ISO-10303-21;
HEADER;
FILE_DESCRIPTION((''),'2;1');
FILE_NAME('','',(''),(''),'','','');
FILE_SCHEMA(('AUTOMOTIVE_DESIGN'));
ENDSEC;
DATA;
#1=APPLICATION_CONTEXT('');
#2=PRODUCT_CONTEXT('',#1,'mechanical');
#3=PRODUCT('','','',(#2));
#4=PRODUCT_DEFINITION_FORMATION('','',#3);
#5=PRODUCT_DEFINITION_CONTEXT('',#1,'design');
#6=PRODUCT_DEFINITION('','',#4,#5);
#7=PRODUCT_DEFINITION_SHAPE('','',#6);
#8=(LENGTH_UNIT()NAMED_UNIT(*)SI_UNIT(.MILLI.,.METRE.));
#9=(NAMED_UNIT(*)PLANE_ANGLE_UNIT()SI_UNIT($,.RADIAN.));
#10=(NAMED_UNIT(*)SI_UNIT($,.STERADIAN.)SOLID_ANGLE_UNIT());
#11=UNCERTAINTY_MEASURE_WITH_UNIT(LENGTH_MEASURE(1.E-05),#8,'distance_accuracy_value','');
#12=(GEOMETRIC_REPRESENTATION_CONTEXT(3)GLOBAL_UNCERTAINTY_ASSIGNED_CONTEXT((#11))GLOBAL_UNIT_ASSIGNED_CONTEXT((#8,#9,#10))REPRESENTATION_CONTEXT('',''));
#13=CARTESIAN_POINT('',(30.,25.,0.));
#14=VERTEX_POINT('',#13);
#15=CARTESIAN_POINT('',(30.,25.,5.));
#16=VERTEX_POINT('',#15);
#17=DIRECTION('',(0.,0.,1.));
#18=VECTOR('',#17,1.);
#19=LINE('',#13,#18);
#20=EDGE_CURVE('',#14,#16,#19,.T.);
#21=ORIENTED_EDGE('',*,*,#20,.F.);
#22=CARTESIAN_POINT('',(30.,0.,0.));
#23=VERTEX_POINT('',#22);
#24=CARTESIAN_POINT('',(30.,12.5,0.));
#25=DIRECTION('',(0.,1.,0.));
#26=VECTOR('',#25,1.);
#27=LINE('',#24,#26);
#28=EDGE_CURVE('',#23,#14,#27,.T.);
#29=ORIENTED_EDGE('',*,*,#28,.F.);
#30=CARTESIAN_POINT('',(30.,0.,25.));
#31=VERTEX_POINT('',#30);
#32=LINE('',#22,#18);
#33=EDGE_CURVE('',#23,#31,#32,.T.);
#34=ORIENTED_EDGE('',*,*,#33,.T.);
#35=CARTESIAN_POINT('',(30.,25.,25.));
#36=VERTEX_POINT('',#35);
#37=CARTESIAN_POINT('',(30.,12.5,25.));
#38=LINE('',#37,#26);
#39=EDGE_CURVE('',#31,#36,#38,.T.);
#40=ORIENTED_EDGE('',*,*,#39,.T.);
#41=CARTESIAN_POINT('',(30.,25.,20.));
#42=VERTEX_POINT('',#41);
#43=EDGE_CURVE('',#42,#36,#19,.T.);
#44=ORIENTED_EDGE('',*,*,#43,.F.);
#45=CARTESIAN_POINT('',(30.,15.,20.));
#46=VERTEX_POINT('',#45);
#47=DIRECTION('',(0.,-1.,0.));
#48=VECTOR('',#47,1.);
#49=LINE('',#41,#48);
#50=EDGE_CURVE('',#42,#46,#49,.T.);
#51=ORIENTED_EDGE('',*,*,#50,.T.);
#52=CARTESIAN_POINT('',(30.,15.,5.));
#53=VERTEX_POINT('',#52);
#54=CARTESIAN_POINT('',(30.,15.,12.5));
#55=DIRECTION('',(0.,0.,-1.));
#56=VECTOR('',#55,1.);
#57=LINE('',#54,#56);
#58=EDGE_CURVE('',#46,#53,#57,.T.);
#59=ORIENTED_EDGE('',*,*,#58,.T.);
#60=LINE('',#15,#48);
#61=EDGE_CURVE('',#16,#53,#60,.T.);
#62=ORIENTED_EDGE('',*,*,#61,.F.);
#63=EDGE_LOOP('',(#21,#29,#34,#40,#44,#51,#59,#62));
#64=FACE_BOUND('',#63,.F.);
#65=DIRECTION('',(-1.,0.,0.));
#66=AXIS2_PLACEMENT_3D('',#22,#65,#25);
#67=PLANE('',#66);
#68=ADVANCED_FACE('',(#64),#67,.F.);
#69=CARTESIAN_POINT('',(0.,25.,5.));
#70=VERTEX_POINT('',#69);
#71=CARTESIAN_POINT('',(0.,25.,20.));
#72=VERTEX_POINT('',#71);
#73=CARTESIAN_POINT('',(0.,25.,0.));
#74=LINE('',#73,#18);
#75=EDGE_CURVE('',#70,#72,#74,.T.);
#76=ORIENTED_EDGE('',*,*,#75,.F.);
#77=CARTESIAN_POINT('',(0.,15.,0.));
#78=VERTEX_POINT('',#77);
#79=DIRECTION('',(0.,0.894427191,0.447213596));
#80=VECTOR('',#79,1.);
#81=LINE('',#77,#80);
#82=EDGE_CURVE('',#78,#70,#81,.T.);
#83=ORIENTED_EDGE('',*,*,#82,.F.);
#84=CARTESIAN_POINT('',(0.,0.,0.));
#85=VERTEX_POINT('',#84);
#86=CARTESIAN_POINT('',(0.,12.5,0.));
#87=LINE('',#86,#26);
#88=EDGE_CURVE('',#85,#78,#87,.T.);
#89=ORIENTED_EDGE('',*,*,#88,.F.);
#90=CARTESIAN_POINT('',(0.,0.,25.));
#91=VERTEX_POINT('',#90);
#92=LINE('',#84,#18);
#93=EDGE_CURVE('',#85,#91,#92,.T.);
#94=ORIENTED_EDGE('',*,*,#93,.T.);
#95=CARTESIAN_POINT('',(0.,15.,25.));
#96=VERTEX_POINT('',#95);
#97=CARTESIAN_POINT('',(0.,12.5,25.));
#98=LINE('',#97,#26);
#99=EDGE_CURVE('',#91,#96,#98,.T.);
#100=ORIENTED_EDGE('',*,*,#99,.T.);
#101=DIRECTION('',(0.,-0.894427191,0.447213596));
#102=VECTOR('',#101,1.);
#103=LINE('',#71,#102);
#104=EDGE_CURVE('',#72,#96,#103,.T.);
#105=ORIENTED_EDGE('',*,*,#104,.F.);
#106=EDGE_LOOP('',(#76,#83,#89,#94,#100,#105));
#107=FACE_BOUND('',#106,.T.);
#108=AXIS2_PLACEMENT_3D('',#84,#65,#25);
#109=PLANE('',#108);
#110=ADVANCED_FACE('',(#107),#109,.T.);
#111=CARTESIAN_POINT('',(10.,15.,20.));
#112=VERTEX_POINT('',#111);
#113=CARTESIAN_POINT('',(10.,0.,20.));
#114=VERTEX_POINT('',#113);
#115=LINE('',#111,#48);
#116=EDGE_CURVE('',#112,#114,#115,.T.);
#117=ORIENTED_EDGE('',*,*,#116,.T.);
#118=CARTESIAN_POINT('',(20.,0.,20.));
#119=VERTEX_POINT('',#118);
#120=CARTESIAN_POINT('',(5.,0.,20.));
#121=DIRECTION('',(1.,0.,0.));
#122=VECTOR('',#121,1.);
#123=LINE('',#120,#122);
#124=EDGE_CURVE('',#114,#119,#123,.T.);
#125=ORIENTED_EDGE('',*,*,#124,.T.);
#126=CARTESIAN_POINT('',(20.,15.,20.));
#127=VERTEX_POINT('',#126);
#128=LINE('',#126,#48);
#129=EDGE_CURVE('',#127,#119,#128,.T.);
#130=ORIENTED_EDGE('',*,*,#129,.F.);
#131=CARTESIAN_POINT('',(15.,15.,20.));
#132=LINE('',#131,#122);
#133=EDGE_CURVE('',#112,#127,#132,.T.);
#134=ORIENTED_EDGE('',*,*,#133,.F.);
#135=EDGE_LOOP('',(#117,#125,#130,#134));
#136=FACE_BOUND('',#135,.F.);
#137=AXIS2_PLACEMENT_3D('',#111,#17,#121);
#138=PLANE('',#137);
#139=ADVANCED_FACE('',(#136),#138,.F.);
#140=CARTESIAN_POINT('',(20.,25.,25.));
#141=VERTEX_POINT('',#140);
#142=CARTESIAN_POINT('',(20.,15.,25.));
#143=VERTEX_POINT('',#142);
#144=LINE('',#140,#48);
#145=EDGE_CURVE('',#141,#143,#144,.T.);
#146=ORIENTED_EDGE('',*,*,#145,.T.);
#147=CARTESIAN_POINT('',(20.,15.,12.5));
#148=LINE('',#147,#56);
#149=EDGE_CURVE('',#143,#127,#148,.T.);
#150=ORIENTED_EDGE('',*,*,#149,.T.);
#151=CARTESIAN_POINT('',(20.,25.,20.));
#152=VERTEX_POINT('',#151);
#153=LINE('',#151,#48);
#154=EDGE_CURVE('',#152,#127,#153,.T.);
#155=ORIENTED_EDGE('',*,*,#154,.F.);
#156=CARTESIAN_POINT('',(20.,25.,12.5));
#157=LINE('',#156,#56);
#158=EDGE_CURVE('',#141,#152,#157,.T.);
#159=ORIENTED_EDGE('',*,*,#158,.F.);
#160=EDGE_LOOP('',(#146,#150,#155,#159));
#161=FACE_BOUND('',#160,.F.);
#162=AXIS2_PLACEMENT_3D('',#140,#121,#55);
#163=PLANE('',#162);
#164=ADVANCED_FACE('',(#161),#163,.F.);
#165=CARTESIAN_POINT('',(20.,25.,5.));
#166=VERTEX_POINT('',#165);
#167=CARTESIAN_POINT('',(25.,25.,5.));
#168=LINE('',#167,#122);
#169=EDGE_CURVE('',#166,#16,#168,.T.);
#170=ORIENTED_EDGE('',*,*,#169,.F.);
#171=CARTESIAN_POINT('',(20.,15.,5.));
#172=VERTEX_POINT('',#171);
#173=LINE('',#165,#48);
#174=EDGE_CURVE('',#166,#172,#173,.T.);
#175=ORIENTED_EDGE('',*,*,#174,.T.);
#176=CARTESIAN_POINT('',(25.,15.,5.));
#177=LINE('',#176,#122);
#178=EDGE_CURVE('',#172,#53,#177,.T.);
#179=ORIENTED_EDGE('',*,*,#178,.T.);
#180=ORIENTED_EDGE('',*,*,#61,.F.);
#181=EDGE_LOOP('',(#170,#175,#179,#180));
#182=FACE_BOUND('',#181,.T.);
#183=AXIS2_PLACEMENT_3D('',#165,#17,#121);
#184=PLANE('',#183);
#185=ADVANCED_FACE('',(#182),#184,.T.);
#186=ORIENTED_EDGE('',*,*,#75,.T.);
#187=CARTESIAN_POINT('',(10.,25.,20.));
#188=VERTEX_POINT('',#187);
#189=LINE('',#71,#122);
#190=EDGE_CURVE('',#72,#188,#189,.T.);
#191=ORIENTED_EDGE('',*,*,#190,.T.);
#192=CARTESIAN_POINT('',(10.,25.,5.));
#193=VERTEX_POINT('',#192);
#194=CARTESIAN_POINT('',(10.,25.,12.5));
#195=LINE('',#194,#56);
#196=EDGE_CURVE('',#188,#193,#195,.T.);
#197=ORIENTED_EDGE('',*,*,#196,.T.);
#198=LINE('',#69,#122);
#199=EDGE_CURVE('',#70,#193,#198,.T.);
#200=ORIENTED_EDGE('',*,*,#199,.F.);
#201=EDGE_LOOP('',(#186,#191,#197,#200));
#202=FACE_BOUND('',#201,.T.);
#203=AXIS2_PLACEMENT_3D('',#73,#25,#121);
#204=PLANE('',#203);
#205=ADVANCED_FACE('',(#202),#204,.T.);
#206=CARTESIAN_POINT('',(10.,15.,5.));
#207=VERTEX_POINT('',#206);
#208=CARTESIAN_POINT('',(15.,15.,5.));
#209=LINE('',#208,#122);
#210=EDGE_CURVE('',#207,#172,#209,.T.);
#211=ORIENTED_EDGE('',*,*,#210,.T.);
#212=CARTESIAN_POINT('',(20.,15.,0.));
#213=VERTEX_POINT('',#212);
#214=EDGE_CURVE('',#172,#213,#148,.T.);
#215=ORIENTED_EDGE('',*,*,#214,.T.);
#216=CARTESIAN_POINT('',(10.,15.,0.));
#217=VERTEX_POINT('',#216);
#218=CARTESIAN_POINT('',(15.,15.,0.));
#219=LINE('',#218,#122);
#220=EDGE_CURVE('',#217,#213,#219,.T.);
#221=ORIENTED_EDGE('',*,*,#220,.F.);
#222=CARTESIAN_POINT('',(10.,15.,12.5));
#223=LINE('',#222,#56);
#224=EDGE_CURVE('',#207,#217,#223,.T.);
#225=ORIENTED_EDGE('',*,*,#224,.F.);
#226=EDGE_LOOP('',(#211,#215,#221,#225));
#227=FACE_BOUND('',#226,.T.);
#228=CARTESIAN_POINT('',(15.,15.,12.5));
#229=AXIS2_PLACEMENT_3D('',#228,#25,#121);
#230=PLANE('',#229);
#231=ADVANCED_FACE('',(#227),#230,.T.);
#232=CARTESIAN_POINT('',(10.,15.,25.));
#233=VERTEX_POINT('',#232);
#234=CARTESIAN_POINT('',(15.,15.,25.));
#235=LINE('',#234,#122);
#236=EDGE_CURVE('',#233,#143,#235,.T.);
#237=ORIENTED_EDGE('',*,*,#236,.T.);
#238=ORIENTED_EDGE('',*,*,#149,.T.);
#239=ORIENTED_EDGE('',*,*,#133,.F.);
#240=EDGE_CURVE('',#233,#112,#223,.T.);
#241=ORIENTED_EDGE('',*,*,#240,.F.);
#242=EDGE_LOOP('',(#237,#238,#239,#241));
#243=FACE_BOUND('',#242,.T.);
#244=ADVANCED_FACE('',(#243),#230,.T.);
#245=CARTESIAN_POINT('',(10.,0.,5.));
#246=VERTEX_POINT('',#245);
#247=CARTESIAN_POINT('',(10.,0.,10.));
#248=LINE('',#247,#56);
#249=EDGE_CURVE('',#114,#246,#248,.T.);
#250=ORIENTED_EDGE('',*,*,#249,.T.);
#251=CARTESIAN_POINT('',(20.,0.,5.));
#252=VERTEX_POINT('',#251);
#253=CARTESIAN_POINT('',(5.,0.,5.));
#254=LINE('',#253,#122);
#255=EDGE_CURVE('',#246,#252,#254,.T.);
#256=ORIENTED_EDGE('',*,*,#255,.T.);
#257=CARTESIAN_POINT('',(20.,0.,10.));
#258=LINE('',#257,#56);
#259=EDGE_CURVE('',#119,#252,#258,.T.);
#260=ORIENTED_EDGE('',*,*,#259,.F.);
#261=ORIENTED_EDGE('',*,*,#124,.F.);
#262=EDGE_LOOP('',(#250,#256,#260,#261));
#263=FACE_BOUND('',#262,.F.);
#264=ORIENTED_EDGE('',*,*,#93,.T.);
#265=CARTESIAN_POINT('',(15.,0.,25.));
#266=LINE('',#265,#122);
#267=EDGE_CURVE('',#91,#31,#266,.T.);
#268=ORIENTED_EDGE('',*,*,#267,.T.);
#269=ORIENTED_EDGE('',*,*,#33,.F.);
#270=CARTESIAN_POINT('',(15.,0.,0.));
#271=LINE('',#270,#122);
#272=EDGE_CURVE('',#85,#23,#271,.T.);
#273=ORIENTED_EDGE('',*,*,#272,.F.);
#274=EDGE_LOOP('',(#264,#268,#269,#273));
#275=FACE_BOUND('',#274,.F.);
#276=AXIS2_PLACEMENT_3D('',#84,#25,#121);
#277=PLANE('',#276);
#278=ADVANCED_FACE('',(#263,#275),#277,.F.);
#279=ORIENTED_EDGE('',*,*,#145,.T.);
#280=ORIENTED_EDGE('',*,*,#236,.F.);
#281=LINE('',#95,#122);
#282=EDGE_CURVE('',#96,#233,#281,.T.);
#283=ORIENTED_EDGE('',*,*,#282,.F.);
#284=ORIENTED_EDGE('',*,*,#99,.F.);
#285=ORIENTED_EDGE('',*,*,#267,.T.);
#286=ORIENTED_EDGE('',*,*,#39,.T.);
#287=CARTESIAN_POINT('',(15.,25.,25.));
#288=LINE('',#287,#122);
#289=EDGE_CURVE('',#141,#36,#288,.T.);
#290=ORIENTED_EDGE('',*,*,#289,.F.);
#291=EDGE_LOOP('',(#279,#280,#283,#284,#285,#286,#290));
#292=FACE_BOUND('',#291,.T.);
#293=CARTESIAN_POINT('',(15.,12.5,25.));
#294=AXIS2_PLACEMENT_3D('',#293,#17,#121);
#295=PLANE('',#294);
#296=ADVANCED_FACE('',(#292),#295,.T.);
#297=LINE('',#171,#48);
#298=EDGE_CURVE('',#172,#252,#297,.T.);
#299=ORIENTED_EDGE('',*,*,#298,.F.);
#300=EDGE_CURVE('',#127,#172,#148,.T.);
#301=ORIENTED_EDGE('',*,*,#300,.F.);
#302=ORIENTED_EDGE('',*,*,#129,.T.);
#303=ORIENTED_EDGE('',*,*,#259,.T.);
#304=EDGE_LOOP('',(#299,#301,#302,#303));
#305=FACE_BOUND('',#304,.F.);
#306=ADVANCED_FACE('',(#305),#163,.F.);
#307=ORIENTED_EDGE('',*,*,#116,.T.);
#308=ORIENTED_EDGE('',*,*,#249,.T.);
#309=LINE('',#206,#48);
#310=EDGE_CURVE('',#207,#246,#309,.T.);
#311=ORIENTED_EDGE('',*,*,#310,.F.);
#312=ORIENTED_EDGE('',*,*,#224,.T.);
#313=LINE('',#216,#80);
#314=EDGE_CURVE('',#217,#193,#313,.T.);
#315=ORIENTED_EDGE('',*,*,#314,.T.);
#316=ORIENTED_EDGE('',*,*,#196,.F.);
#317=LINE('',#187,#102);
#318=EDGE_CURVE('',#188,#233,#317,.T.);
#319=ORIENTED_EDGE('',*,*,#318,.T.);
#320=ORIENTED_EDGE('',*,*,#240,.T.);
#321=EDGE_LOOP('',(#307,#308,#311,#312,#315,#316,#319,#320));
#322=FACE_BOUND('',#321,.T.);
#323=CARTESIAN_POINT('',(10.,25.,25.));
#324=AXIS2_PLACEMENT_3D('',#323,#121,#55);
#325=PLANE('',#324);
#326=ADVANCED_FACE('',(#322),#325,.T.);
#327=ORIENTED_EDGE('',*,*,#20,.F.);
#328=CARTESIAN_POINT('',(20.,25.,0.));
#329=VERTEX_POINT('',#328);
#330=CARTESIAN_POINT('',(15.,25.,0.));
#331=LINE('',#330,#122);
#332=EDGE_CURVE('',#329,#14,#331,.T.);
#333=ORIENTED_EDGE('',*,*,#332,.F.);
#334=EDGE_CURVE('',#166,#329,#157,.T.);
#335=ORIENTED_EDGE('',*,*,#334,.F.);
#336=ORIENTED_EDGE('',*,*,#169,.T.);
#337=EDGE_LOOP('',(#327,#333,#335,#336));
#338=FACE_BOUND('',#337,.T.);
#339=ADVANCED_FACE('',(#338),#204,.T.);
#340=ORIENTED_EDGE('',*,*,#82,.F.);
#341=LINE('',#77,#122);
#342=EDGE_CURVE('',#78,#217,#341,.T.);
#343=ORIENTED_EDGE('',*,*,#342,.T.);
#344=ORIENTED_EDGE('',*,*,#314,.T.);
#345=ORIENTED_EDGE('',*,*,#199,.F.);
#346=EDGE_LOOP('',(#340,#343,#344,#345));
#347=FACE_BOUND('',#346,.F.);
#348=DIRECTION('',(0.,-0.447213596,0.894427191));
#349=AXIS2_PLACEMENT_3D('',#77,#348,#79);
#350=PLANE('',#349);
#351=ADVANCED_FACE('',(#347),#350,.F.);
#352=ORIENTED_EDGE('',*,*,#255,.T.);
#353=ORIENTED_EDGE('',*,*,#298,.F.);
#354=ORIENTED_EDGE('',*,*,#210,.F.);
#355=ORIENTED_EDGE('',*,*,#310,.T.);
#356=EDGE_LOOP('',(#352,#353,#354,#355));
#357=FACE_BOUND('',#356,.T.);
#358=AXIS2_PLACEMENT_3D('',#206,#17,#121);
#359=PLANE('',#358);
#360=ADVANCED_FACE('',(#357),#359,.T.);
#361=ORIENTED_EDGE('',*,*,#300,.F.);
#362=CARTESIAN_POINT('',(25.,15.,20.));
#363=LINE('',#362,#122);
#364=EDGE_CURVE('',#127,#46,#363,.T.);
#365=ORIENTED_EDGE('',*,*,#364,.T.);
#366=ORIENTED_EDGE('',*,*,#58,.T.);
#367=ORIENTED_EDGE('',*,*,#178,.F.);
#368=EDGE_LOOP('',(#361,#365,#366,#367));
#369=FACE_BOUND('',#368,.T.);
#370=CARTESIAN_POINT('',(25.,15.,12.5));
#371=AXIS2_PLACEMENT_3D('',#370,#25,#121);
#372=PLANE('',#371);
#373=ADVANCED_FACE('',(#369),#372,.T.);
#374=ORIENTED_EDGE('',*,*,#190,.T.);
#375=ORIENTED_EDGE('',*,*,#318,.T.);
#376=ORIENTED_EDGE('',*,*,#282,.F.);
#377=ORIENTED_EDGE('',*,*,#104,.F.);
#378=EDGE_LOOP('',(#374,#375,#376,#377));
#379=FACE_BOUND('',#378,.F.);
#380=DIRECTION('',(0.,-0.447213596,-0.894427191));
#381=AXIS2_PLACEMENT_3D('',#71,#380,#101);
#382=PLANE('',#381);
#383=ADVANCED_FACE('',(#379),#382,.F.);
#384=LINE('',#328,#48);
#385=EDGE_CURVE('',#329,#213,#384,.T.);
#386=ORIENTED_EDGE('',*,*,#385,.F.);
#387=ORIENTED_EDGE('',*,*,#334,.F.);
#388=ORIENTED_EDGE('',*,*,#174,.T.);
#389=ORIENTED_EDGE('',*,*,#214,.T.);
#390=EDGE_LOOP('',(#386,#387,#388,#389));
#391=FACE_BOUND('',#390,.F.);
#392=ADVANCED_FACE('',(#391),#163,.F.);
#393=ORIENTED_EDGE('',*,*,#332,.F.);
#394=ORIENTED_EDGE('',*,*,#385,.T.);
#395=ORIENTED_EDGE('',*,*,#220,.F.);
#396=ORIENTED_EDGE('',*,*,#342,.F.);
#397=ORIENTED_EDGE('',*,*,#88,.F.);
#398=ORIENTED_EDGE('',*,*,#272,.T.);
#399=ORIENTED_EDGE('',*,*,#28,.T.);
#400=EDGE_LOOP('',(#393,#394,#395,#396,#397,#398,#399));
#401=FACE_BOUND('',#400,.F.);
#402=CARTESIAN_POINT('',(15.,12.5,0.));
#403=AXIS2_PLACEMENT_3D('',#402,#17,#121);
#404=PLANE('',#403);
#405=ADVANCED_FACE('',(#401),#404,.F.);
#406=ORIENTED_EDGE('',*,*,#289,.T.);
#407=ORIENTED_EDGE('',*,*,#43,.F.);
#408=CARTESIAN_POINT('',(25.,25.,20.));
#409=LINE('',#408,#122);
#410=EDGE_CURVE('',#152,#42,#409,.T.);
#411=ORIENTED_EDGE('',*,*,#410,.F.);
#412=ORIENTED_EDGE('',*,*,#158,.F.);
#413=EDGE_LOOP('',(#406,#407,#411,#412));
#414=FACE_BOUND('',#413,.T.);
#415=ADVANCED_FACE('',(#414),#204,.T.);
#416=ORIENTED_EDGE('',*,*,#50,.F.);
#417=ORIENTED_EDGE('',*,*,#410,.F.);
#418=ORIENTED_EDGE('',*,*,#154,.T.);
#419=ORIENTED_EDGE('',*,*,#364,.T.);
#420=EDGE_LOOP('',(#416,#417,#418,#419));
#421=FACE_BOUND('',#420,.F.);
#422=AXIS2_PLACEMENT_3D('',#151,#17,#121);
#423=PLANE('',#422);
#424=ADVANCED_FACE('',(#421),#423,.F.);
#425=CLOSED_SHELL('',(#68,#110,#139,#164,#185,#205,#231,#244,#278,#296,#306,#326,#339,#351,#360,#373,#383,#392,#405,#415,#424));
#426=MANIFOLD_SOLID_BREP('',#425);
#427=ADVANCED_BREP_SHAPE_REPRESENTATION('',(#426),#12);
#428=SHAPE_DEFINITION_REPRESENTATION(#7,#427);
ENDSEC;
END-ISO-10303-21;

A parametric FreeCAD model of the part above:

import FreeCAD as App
import Part
import Sketcher
from FreeCAD import Vector
Q = App.Units.Quantity

doc = App.newDocument("Part")
body = doc.addObject("PartDesign::Body", "Body")

# Sketch on XY plane
sketch1 = doc.addObject("Sketcher::SketchObject", "Sketch")
body.addObject(sketch1)
sketch1.AttachmentSupport = (doc.XY_Plane, [""])
sketch1.MapMode = "FlatFace"
sketch1.addGeometry([
    Part.LineSegment(Vector(0, 25, 0), Vector(0, 0, 0)),
    Part.LineSegment(Vector(0, 0, 0), Vector(30, 0, 0)),
    Part.LineSegment(Vector(30, 0, 0), Vector(30, 25, 0)),
    Part.LineSegment(Vector(30, 25, 0), Vector(0, 25, 0)),
], False)
sketch1.addConstraint([
    Sketcher.Constraint("Coincident", 0, 2, 1, 1),
    Sketcher.Constraint("Coincident", 1, 2, 2, 1),
    Sketcher.Constraint("Coincident", 2, 2, 3, 1),
    Sketcher.Constraint("Coincident", 3, 2, 0, 1),
    Sketcher.Constraint("Vertical", 0),
    Sketcher.Constraint("Horizontal", 1),
    Sketcher.Constraint("Vertical", 2),
    Sketcher.Constraint("Horizontal", 3),
    Sketcher.Constraint("Coincident", 0, 2, -1, 1),
    Sketcher.Constraint("DistanceX", 1, 1, 1, 2, Q("30 mm")),
    Sketcher.Constraint("DistanceY", 0, 2, 0, 1, Q("25 mm")),
])
pad1 = doc.addObject("PartDesign::Pad", "Pad")
body.addObject(pad1)
pad1.Profile = sketch1
pad1.Length = 25

# Sketch on YZ plane
sketch2 = doc.addObject("Sketcher::SketchObject", "Sketch001")
body.addObject(sketch2)
sketch2.AttachmentSupport = (doc.YZ_Plane, [""])
sketch2.MapMode = "FlatFace"
sketch2.addGeometry([
    Part.LineSegment(Vector(15, 0, 0), Vector(25, 5, 0)),  # 0
    Part.LineSegment(Vector(25, 5, 0), Vector(25, 0, 0)),  # 1
    Part.LineSegment(Vector(25, 0, 0), Vector(15, 0, 0)),  # 2
    Part.LineSegment(Vector(25, 25, 0), Vector(25, 20, 0)),  # 3
    Part.LineSegment(Vector(25, 20, 0), Vector(15, 25, 0)),  # 4
    Part.LineSegment(Vector(15, 25, 0), Vector(25, 25, 0)),  # 5
], False)
sketch2.addConstraint([
    Sketcher.Constraint("Coincident", 0, 2, 1, 1),
    Sketcher.Constraint("Coincident", 1, 2, 2, 1),
    Sketcher.Constraint("Coincident", 2, 2, 0, 1),
    Sketcher.Constraint("Coincident", 3, 2, 4, 1),
    Sketcher.Constraint("Coincident", 4, 2, 5, 1),
    Sketcher.Constraint("Coincident", 5, 2, 3, 1),
    Sketcher.Constraint("Vertical", 1),
    Sketcher.Constraint("Horizontal", 2),
    Sketcher.Constraint("Vertical", 3),
    Sketcher.Constraint("Horizontal", 5),
    Sketcher.Constraint("PointOnObject", 1, 2, -1),
    Sketcher.Constraint("Vertical", 1, 2, 3, 2),
    Sketcher.Constraint("Vertical", 2, 2, 4, 2),
    Sketcher.Constraint("Equal", 1, 3),
    Sketcher.Constraint("DistanceX", 2, 2, 2, 1, Q("10 mm")),
    Sketcher.Constraint("DistanceY", 1, 2, 1, 1, Q("5 mm")),
    Sketcher.Constraint("DistanceX", -1, 1, 0, 2, Q("25 mm")),
    Sketcher.Constraint("DistanceY", -1, 1, 3, 2, Q("20 mm")),
])
pocket1 = doc.addObject("PartDesign::Pocket", "Pocket")
body.addObject(pocket1)
pocket1.Profile = sketch2
pocket1.Length = 10
pocket1.Reversed = True

# Sketch on XZ plane
sketch3 = doc.addObject("Sketcher::SketchObject", "Sketch002")
body.addObject(sketch3)
sketch3.AttachmentSupport = (doc.XZ_Plane, [""])
sketch3.MapMode = "FlatFace"
sketch3.AttachmentOffset = App.Placement(Vector(0, 0, -25), App.Rotation())
sketch3.addGeometry([
    Part.LineSegment(Vector(10, 0, 0), Vector(10, 25, 0)),
    Part.LineSegment(Vector(10, 25, 0), Vector(20, 25, 0)),
    Part.LineSegment(Vector(20, 25, 0), Vector(20, 0, 0)),
    Part.LineSegment(Vector(20, 0, 0), Vector(10, 0, 0)),
], False)
sketch3.addConstraint([
    Sketcher.Constraint("Coincident", 0, 2, 1, 1),
    Sketcher.Constraint("Coincident", 1, 2, 2, 1),
    Sketcher.Constraint("Coincident", 2, 2, 3, 1),
    Sketcher.Constraint("Coincident", 3, 2, 0, 1),
    Sketcher.Constraint("Vertical", 0),
    Sketcher.Constraint("Horizontal", 1),
    Sketcher.Constraint("Vertical", 2),
    Sketcher.Constraint("Horizontal", 3),
    Sketcher.Constraint("PointOnObject", 2, 2, -1),
    Sketcher.Constraint("DistanceX", 1, 1, 1, 2, Q("10 mm")),
    Sketcher.Constraint("DistanceY", 0, 1, 0, 2, Q("25 mm")),
    Sketcher.Constraint("DistanceX", -1, 1, 0, 2, Q("10 mm")),
])
pocket2 = doc.addObject("PartDesign::Pocket", "Pocket001")
body.addObject(pocket2)
pocket2.Profile = sketch3
pocket2.Length = 10
pocket2.Reversed = True

# Sketch on XZ plane
sketch4 = doc.addObject("Sketcher::SketchObject", "Sketch003")
body.addObject(sketch4)
sketch4.AttachmentSupport = (doc.XZ_Plane, [""])
sketch4.MapMode = "FlatFace"
sketch4.AttachmentOffset = App.Placement(Vector(0, 0, -15), App.Rotation())
sketch4.addGeometry([
    Part.LineSegment(Vector(10, 5, 0), Vector(10, 20, 0)),
    Part.LineSegment(Vector(10, 20, 0), Vector(20, 20, 0)),
    Part.LineSegment(Vector(20, 20, 0), Vector(20, 5, 0)),
    Part.LineSegment(Vector(20, 5, 0), Vector(10, 5, 0)),
], False)
sketch4.addConstraint([
    Sketcher.Constraint("Coincident", 0, 2, 1, 1),
    Sketcher.Constraint("Coincident", 1, 2, 2, 1),
    Sketcher.Constraint("Coincident", 2, 2, 3, 1),
    Sketcher.Constraint("Coincident", 3, 2, 0, 1),
    Sketcher.Constraint("Vertical", 0),
    Sketcher.Constraint("Horizontal", 1),
    Sketcher.Constraint("Vertical", 2),
    Sketcher.Constraint("Horizontal", 3),
    Sketcher.Constraint("DistanceX", 1, 1, 1, 2, Q("10 mm")),
    Sketcher.Constraint("DistanceY", 0, 1, 0, 2, Q("15 mm")),
    Sketcher.Constraint("DistanceX", -1, 1, 0, 2, Q("10 mm")),
    Sketcher.Constraint("DistanceY", -1, 1, 0, 2, Q("20 mm")),
])
pocket3 = doc.addObject("PartDesign::Pocket", "Pocket002")
body.addObject(pocket3)
pocket3.Profile = sketch4
pocket3.Length = 30
pocket3.Reversed = True

# Sketch on XZ plane
sketch5 = doc.addObject("Sketcher::SketchObject", "Sketch004")
body.addObject(sketch5)
sketch5.AttachmentSupport = (doc.XZ_Plane, [""])
sketch5.MapMode = "FlatFace"
sketch5.AttachmentOffset = App.Placement(Vector(0, 0, -25), App.Rotation())
sketch5.addGeometry([
    Part.LineSegment(Vector(20, 5, 0), Vector(20, 20, 0)),
    Part.LineSegment(Vector(20, 20, 0), Vector(30, 20, 0)),
    Part.LineSegment(Vector(30, 20, 0), Vector(30, 5, 0)),
    Part.LineSegment(Vector(30, 5, 0), Vector(20, 5, 0)),
], False)
sketch5.addConstraint([
    Sketcher.Constraint("Coincident", 0, 2, 1, 1),
    Sketcher.Constraint("Coincident", 1, 2, 2, 1),
    Sketcher.Constraint("Coincident", 2, 2, 3, 1),
    Sketcher.Constraint("Coincident", 3, 2, 0, 1),
    Sketcher.Constraint("Vertical", 0),
    Sketcher.Constraint("Horizontal", 1),
    Sketcher.Constraint("Vertical", 2),
    Sketcher.Constraint("Horizontal", 3),
    Sketcher.Constraint("DistanceX", 1, 1, 1, 2, Q("10 mm")),
    Sketcher.Constraint("DistanceY", 0, 1, 0, 2, Q("15 mm")),
    Sketcher.Constraint("DistanceX", -1, 1, 0, 2, Q("20 mm")),
    Sketcher.Constraint("DistanceY", -1, 1, 0, 2, Q("20 mm")),
])
pocket4 = doc.addObject("PartDesign::Pocket", "Pocket003")
body.addObject(pocket4)
pocket4.Profile = sketch5
pocket4.Length = 10
pocket4.Reversed = True

doc.recompute()
